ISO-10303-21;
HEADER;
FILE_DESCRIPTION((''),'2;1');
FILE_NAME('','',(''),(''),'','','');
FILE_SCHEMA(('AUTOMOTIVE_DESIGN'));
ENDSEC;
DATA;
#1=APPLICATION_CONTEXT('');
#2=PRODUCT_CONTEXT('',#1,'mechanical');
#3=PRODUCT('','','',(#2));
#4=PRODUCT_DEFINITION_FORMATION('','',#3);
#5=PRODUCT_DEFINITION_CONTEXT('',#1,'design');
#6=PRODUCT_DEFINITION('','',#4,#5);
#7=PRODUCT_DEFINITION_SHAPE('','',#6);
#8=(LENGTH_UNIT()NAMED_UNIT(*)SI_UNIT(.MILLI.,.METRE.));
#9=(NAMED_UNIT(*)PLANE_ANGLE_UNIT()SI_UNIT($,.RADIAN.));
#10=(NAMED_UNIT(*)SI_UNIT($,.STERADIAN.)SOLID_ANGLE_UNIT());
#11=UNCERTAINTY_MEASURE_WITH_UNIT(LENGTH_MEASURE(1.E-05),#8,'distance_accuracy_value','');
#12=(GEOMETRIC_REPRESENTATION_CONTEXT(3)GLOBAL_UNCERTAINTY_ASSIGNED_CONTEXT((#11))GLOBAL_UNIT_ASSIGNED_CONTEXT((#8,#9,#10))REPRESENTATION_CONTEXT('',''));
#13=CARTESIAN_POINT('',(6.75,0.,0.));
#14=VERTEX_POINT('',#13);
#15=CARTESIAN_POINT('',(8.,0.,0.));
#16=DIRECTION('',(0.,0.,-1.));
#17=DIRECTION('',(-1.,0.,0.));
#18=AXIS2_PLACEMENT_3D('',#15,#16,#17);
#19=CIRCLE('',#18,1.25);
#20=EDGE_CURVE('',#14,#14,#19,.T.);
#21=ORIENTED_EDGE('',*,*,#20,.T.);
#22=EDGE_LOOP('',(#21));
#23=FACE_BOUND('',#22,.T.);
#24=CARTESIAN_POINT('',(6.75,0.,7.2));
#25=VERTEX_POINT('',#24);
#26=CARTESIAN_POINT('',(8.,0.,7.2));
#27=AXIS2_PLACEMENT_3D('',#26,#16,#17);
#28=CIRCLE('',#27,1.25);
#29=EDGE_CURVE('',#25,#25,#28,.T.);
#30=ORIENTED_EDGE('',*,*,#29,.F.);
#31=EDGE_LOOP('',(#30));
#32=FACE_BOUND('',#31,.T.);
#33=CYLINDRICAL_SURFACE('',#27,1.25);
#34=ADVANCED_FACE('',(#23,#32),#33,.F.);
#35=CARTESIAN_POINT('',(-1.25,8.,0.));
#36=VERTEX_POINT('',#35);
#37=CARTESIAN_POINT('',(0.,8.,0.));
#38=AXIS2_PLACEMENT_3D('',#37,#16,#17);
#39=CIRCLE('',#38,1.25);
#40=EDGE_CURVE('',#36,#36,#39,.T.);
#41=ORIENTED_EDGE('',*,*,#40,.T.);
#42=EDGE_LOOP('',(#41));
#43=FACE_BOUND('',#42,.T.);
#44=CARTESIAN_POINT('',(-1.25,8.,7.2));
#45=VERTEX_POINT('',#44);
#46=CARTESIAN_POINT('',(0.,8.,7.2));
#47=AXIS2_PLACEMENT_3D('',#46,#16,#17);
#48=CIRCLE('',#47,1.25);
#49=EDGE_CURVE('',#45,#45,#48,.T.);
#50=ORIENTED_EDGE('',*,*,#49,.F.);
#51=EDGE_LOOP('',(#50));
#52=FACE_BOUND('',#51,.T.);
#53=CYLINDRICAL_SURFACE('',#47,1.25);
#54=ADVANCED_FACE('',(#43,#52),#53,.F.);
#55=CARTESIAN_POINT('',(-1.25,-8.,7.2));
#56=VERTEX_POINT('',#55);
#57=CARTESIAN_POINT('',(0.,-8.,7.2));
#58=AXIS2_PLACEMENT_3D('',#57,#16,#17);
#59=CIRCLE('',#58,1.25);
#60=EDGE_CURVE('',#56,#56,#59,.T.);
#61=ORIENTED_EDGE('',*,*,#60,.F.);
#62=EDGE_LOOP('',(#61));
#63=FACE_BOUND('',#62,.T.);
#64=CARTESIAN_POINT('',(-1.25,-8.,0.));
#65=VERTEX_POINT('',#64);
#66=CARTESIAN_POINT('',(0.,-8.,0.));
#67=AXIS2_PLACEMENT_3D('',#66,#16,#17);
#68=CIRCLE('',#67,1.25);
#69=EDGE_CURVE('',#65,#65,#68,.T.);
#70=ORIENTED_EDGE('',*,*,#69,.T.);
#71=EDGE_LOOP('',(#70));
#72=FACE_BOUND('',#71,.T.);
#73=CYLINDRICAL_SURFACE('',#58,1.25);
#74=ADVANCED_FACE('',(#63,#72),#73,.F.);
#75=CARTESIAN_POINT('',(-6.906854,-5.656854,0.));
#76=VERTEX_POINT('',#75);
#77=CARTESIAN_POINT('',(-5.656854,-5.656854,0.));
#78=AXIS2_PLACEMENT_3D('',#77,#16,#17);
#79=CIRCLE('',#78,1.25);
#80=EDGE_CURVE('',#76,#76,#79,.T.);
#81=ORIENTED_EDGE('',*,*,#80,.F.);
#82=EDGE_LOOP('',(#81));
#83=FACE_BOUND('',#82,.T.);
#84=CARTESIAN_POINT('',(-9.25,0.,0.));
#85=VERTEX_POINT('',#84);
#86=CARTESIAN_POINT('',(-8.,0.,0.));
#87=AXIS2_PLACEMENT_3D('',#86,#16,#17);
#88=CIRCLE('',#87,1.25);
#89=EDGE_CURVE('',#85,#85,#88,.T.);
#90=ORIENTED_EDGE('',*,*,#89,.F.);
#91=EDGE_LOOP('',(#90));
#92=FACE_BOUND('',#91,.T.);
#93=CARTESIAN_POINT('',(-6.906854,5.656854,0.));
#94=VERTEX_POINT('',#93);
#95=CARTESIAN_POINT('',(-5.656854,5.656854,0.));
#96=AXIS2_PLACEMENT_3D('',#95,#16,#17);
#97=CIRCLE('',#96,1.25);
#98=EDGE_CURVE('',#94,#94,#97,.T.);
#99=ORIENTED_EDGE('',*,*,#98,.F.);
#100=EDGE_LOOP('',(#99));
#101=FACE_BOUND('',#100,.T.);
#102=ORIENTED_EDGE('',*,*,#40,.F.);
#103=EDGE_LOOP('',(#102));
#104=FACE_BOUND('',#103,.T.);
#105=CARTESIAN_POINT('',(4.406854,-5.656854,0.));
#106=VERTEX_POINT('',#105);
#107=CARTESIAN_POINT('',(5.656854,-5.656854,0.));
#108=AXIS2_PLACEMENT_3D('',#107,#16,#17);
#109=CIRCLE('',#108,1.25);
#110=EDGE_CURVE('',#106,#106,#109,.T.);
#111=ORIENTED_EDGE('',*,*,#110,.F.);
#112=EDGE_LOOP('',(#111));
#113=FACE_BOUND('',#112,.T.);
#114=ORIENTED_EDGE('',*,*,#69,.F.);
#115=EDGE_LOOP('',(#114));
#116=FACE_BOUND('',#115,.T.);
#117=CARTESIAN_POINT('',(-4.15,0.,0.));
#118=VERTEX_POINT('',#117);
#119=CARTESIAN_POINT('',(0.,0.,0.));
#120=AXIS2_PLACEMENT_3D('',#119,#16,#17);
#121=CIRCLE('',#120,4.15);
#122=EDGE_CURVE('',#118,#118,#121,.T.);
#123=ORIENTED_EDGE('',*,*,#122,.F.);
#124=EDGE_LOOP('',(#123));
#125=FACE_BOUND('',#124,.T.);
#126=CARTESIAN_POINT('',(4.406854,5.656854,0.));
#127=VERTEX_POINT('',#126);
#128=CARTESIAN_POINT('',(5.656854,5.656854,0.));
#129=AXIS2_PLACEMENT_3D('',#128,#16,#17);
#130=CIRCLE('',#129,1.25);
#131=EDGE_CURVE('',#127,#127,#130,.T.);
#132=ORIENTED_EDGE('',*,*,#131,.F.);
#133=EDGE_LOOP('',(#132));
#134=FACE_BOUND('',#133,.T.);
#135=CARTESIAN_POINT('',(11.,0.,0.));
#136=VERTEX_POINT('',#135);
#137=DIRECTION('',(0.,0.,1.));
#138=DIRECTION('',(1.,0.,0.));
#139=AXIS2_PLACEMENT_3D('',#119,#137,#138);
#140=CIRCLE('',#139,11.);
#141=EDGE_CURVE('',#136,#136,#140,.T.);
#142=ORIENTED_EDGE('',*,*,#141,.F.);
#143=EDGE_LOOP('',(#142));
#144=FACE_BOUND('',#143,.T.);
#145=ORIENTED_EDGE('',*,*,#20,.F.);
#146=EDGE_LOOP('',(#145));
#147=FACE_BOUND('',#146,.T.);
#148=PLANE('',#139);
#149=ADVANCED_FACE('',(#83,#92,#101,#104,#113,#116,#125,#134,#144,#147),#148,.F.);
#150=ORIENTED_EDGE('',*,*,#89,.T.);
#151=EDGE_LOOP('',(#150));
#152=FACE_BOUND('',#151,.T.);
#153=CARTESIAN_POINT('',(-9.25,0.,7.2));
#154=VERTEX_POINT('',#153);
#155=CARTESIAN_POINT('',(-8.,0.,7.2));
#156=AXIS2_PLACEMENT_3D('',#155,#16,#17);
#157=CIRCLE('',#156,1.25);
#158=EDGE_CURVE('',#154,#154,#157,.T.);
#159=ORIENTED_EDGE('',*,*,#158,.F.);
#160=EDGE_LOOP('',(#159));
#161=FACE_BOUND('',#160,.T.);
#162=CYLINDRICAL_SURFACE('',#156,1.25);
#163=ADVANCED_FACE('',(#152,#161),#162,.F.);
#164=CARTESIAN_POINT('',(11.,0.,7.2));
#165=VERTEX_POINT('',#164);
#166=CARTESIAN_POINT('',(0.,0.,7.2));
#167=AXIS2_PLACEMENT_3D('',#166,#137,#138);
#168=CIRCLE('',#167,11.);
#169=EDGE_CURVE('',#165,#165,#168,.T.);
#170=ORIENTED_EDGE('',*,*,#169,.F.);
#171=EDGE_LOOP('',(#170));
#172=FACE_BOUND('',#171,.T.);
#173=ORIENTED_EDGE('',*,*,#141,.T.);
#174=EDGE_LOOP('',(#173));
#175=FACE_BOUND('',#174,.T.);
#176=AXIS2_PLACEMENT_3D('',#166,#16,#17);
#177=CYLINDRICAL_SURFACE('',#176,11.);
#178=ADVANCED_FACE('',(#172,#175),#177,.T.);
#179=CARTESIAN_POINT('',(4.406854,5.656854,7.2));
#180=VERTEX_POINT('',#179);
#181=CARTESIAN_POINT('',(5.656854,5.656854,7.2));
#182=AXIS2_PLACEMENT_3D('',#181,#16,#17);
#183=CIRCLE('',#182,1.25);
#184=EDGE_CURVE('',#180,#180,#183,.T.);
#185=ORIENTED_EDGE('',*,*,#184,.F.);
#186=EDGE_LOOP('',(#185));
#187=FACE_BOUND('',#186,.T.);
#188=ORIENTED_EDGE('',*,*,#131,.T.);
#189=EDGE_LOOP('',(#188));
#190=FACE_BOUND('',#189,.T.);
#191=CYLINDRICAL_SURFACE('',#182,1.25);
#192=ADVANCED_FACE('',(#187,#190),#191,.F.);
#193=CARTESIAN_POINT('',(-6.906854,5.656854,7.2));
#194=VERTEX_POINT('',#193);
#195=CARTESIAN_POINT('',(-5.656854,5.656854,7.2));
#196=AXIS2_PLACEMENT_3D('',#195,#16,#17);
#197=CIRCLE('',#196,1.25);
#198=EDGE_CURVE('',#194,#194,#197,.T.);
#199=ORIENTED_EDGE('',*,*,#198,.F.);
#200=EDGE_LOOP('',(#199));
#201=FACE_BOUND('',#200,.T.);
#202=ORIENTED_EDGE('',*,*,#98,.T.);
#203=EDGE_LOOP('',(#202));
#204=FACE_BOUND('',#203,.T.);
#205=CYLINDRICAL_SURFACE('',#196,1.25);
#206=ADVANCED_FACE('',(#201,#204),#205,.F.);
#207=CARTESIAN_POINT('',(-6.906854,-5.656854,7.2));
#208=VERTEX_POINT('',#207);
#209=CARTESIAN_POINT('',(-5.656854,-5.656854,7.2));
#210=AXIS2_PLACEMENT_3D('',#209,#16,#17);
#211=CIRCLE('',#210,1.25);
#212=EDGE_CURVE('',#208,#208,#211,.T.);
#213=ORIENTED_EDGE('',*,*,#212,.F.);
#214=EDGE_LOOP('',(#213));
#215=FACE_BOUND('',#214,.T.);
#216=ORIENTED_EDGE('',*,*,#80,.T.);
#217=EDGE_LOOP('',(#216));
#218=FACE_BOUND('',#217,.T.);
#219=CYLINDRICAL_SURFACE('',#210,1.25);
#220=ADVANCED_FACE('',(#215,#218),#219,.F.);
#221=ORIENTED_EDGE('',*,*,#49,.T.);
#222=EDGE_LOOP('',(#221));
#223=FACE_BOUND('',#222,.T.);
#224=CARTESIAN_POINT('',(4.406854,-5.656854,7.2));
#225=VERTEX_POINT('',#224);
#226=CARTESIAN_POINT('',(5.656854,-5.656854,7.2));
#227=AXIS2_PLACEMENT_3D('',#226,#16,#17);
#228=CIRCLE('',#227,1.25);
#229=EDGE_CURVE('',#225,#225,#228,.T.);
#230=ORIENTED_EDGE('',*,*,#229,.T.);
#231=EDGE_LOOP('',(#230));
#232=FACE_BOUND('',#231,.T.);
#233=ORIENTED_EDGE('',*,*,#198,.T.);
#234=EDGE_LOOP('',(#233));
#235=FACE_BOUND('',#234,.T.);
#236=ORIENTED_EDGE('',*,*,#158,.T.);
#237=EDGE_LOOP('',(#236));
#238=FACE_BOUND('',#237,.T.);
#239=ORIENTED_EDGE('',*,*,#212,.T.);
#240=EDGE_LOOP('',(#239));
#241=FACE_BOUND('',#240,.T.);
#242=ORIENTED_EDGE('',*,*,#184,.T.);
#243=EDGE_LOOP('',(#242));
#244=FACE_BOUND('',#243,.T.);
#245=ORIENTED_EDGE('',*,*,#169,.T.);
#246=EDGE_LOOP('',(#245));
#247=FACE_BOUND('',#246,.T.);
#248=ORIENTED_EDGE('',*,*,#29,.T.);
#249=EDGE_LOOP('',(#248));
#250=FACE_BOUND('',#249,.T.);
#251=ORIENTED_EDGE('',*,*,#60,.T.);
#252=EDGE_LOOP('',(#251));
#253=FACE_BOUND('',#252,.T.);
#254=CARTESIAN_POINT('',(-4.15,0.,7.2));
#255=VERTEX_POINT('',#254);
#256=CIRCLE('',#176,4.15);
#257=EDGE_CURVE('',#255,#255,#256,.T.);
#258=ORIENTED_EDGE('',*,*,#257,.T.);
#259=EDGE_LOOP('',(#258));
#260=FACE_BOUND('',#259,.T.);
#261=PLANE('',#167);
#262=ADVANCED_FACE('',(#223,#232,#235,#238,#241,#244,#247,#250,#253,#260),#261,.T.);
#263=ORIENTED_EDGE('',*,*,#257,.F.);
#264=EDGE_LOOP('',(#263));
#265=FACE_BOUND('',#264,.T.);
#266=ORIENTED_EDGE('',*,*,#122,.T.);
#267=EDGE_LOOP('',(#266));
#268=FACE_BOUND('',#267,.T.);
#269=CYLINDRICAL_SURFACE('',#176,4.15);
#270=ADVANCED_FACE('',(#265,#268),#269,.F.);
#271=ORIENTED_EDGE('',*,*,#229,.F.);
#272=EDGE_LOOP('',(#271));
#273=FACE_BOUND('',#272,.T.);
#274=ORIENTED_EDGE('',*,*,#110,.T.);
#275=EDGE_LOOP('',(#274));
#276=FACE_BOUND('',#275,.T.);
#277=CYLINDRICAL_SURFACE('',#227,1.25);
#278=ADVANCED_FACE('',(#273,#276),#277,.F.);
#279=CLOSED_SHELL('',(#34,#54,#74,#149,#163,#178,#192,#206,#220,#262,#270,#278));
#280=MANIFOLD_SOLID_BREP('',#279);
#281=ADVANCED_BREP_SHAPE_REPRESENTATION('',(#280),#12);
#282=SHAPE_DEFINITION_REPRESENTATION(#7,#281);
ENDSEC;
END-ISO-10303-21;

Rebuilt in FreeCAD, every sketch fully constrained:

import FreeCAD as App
import Part
import Sketcher

doc = App.newDocument("Part")
body = doc.addObject("PartDesign::Body", "Body")

# Sketch on XY plane
sketch1 = body.newObject("Sketcher::SketchObject", "Sketch")
sketch1.AttachmentSupport = (doc.getObject("XY_Plane"), [""])
sketch1.MapMode = "FlatFace"
sketch1.addGeometry(Part.Circle(App.Vector(0, 0, 0), App.Vector(0, 0, 1), 11), False)
sketch1.addConstraint([
    Sketcher.Constraint("Coincident", 0, 3, -1, 1),
    Sketcher.Constraint("Diameter", 0, 22.0),
])
pad1 = body.newObject("PartDesign::Pad", "Pad")
pad1.Profile = sketch1
pad1.Length = 7.2

# Sketch on XY plane
sketch2 = body.newObject("Sketcher::SketchObject", "Sketch001")
sketch2.AttachmentSupport = (doc.getObject("XY_Plane"), [""])
sketch2.MapMode = "FlatFace"
sketch2.addGeometry([
    Part.Circle(App.Vector(0, 0, 0), App.Vector(0, 0, 1), 4.15),  # 0
    Part.Circle(App.Vector(-8, 0, 0), App.Vector(0, 0, 1), 1.25),  # 1
    Part.Circle(App.Vector(-5.656854, -5.656854, 0), App.Vector(0, 0, 1), 1.25),  # 2
    Part.Circle(App.Vector(0, -8, 0), App.Vector(0, 0, 1), 1.25),  # 3
    Part.Circle(App.Vector(5.656854, -5.656854, 0), App.Vector(0, 0, 1), 1.25),  # 4
    Part.Circle(App.Vector(8, 0, 0), App.Vector(0, 0, 1), 1.25),  # 5
    Part.Circle(App.Vector(5.656854, 5.656854, 0), App.Vector(0, 0, 1), 1.25),  # 6
    Part.Circle(App.Vector(0, 8, 0), App.Vector(0, 0, 1), 1.25),  # 7
    Part.Circle(App.Vector(-5.656854, 5.656854, 0), App.Vector(0, 0, 1), 1.25),  # 8
], False)
sketch2.addConstraint([
    Sketcher.Constraint("Coincident", 0, 3, -1, 1),
    Sketcher.Constraint("Equal", 1, 2),
    Sketcher.Constraint("Equal", 2, 3),
    Sketcher.Constraint("Equal", 3, 4),
    Sketcher.Constraint("Equal", 4, 5),
    Sketcher.Constraint("Equal", 5, 6),
    Sketcher.Constraint("Equal", 6, 7),
    Sketcher.Constraint("Equal", 7, 8),
    Sketcher.Constraint("Symmetric", 1, 3, 5, 3, -1, 1),
    Sketcher.Constraint("Symmetric", 2, 3, 6, 3, -1, 1),
    Sketcher.Constraint("Symmetric", 3, 3, 7, 3, -1, 1),
    Sketcher.Constraint("Symmetric", 4, 3, 8, 3, -1, 1),
    Sketcher.Constraint("Symmetric", 2, 3, 4, 3, -2),
    Sketcher.Constraint("PointOnObject", 1, 3, -1),
    Sketcher.Constraint("PointOnObject", 3, 3, -2),
    Sketcher.Constraint("Diameter", 0, 8.3),
    Sketcher.Constraint("Diameter", 1, 2.5),
    Sketcher.Constraint("DistanceX", 1, 3, -1, 1, 8.0),
    Sketcher.Constraint("DistanceY", 3, 3, -1, 1, 8.0),
    Sketcher.Constraint("DistanceX", 2, 3, 4, 3, 11.313708),
    Sketcher.Constraint("DistanceY", 4, 3, 6, 3, 11.313708),
])
pocket1 = body.newObject("PartDesign::Pocket", "Pocket")
pocket1.Profile = sketch2
pocket1.Type = "ThroughAll"
pocket1.Reversed = True

doc.recompute()
